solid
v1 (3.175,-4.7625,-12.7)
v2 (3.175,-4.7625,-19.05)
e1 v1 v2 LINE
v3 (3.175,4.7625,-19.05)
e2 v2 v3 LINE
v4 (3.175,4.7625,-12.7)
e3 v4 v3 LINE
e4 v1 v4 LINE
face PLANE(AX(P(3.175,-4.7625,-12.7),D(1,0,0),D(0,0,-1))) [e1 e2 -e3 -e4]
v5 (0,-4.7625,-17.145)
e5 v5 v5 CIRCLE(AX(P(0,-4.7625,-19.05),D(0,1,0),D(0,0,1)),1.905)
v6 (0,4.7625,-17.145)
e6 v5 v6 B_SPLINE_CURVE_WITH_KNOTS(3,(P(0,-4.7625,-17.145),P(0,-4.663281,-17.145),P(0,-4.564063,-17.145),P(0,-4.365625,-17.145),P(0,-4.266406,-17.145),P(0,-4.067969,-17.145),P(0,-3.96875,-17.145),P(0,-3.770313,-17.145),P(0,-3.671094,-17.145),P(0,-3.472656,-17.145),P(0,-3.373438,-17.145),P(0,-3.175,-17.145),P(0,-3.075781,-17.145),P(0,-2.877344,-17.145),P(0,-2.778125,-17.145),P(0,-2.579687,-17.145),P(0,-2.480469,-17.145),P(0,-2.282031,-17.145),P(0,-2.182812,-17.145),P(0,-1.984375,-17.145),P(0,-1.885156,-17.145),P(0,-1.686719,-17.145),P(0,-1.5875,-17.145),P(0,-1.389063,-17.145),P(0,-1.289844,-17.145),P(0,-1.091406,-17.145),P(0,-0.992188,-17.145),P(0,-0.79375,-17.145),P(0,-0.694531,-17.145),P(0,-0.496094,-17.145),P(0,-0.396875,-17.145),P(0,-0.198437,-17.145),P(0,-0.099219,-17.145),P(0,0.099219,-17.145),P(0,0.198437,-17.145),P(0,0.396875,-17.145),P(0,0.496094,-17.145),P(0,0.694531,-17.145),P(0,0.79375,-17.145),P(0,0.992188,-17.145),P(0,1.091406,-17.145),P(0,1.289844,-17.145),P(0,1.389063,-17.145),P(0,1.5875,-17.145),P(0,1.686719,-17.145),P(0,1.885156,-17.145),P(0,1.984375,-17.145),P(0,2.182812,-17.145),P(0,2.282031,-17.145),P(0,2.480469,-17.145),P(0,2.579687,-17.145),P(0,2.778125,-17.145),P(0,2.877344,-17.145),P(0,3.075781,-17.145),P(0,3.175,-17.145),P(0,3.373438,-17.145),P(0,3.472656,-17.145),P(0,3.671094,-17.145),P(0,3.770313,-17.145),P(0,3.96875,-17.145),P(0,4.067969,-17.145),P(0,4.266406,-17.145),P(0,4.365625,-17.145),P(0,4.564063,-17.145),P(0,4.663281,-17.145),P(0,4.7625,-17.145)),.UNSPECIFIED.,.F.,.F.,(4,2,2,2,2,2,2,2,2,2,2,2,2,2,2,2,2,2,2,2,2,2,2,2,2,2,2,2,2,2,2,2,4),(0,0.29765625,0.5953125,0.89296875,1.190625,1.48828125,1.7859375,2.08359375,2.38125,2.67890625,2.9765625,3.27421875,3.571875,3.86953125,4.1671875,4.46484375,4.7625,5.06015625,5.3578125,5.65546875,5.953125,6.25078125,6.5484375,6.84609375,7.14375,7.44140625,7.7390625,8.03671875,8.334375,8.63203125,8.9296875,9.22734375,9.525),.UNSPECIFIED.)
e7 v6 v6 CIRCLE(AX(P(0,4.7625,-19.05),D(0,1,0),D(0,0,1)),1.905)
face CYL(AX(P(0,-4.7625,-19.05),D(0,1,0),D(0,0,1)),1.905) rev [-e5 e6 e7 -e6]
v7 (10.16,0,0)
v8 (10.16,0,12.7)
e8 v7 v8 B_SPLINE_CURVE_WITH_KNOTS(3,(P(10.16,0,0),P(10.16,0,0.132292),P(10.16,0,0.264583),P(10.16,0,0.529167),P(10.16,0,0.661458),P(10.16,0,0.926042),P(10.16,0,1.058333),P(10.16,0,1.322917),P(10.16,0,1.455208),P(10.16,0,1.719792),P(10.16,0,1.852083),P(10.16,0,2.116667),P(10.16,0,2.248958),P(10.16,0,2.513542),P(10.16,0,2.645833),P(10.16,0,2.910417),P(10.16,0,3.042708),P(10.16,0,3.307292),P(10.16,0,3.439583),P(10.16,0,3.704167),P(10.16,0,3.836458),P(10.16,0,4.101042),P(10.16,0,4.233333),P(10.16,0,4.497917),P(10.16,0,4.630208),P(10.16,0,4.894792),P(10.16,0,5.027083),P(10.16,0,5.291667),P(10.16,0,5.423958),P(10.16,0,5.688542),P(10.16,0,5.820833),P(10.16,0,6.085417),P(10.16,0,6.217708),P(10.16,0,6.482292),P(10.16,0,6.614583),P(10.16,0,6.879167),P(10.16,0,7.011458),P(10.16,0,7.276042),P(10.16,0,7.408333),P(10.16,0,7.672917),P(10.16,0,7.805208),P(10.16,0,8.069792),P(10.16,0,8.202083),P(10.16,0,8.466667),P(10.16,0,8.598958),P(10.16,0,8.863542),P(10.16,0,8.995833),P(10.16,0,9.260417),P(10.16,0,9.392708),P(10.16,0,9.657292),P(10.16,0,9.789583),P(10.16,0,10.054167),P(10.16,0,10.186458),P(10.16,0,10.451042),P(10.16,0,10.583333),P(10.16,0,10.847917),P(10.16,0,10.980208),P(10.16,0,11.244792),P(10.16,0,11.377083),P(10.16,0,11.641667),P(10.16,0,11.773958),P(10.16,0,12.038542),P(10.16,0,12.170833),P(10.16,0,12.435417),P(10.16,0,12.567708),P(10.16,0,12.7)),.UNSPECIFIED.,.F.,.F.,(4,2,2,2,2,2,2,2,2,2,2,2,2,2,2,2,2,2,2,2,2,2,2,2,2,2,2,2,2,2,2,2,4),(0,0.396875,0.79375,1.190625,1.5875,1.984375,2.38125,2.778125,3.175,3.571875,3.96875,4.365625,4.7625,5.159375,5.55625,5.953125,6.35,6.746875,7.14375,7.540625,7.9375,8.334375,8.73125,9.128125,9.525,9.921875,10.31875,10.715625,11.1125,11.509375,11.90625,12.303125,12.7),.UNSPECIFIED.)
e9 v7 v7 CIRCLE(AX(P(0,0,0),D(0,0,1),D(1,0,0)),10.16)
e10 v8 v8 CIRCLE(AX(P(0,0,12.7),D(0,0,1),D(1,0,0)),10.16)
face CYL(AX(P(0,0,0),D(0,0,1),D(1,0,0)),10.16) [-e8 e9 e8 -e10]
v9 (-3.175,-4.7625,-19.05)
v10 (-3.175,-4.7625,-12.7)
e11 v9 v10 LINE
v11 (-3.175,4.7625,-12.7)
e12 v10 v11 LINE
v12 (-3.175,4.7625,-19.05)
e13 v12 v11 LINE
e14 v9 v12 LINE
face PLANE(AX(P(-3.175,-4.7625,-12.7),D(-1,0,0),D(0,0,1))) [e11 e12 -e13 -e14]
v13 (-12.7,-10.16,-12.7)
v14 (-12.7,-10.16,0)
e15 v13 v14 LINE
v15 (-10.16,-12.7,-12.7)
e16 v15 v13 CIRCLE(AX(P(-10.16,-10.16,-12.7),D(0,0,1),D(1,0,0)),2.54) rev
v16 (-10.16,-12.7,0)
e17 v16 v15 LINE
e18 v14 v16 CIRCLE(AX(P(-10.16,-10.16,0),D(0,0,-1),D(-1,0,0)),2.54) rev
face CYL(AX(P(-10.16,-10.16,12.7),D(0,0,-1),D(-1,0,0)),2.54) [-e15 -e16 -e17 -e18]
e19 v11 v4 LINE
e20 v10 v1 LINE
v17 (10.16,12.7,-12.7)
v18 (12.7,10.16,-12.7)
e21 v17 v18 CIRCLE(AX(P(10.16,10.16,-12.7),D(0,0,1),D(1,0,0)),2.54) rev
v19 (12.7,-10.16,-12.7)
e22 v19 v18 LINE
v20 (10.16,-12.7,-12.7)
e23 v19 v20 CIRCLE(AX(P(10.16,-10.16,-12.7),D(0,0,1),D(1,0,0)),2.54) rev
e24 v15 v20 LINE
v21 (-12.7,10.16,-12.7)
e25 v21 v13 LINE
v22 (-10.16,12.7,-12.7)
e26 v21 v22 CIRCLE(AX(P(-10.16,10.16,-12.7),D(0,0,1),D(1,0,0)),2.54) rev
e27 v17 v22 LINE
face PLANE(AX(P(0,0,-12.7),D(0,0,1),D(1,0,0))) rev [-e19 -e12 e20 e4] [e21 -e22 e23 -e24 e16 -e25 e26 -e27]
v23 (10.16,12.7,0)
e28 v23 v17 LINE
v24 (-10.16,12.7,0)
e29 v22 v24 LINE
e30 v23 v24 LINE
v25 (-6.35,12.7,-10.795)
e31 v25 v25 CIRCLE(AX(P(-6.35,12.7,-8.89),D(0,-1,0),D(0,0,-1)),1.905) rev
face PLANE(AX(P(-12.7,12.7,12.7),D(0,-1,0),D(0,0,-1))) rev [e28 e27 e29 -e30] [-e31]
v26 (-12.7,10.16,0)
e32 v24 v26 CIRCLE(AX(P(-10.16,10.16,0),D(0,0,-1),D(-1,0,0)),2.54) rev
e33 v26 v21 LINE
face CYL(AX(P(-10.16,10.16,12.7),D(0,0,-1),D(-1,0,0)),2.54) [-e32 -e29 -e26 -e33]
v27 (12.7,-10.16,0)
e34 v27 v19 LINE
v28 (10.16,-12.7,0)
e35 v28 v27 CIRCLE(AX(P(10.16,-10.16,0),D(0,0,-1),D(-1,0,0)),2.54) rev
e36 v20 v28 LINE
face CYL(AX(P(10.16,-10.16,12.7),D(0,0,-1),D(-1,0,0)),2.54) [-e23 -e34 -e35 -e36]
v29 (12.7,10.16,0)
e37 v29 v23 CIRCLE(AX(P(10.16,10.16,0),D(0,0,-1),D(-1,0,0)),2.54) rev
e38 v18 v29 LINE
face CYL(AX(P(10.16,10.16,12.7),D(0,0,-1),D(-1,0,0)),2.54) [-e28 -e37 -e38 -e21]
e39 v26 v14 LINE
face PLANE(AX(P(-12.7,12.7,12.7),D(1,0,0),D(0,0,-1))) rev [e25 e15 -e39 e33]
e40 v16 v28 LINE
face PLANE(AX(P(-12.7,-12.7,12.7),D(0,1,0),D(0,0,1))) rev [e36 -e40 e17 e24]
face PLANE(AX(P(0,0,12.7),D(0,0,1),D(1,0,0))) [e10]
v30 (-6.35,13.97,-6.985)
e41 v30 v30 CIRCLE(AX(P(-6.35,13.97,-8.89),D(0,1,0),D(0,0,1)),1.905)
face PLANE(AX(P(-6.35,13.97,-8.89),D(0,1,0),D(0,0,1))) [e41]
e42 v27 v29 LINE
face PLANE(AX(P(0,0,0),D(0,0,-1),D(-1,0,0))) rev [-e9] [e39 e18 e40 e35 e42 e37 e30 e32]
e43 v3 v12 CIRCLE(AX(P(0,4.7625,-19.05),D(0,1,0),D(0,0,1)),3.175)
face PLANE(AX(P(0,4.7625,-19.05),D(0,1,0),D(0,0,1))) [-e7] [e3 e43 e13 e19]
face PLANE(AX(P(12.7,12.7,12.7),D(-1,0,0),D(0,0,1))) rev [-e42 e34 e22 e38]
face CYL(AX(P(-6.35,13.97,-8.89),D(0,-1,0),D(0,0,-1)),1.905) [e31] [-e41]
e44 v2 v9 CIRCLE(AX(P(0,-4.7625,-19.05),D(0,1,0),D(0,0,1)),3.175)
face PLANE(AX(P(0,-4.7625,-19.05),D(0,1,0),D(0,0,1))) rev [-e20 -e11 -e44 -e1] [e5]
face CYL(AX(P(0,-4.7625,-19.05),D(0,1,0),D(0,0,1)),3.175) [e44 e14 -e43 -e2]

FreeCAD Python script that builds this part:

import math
import FreeCAD as App
import Part
import Sketcher
Q = App.Units.Quantity


def edges_at(feature, points):
    """Names of the edges that pass closest to the given points."""
    edges = feature.Shape.Edges
    near = lambda p: min(range(len(edges)), key=lambda i: edges[i].distToShape(Part.Vertex(*p))[0])
    return sorted({f"Edge{near(p) + 1}" for p in points})


def add_polygon(sketch, points):
    """Adds a closed chain of lines whose ends are joined by coincident constraints."""
    first, n = sketch.GeometryCount, len(points)
    for a, b in zip(points, points[1:] + points[:1]):
        sketch.addGeometry(Part.LineSegment(App.Vector(*a, 0), App.Vector(*b, 0)), False)
    for i in range(n):
        sketch.addConstraint(Sketcher.Constraint("Coincident", first + i, 2, first + (i + 1) % n, 1))

doc = App.newDocument("Part")
body = doc.addObject("PartDesign::Body", "Body")

# Sketch on XY plane
sketch1 = body.newObject("Sketcher::SketchObject", "Sketch")
sketch1.AttachmentSupport = (doc.getObject("XY_Plane"), [""])
sketch1.MapMode = "FlatFace"
add_polygon(sketch1, [(-13, 13), (-13, -13), (13, -13), (13, 13)])  # lines 0-3
sketch1.addConstraint(Sketcher.Constraint("Vertical", 0))
sketch1.addConstraint(Sketcher.Constraint("Horizontal", 1))
sketch1.addConstraint(Sketcher.Constraint("Vertical", 2))
sketch1.addConstraint(Sketcher.Constraint("Horizontal", 3))
sketch1.addConstraint(Sketcher.Constraint("Symmetric", 0, 2, 2, 2, -1, 1))
sketch1.addConstraint(Sketcher.Constraint("Equal", 3, 0))
sketch1.addConstraint(Sketcher.Constraint("DistanceX", 1, 1, 1, 2, Q("1 in")))
pad1 = body.newObject("PartDesign::Pad", "Pad")
pad1.Profile = sketch1
pad1.Length = Q("1 in")
pad1.Midplane = True

# Sketch on XY plane
sketch2 = body.newObject("Sketcher::SketchObject", "Sketch001")
sketch2.AttachmentSupport = (doc.getObject("XY_Plane"), [""])
sketch2.MapMode = "FlatFace"
sketch2.AttachmentOffset = App.Placement(App.Vector(0, 0, 0.5 * 25.4), App.Rotation())
add_polygon(sketch2, [(-13, 13), (-13, -13), (13, -13), (13, 13)])  # lines 0-3
sketch2.addGeometry(Part.Circle(App.Vector(0, 0, 0), App.Vector(0, 0, 1), 10), False)  # 4
sketch2.addConstraint(Sketcher.Constraint("Vertical", 0))
sketch2.addConstraint(Sketcher.Constraint("Horizontal", 1))
sketch2.addConstraint(Sketcher.Constraint("Vertical", 2))
sketch2.addConstraint(Sketcher.Constraint("Horizontal", 3))
sketch2.addConstraint(Sketcher.Constraint("Coincident", 4, 3, -1, 1))
sketch2.addConstraint(Sketcher.Constraint("Symmetric", 0, 2, 2, 2, -1, 1))
sketch2.addConstraint(Sketcher.Constraint("Equal", 3, 0))
sketch2.addConstraint(Sketcher.Constraint("Diameter", 4, Q("0.8 in")))
sketch2.addConstraint(Sketcher.Constraint("DistanceX", 1, 1, 1, 2, Q("1 in")))
pocket1 = body.newObject("PartDesign::Pocket", "Pocket")
pocket1.Profile = sketch2
pocket1.Length = Q("0.5 in")
doc.recompute()

fillet = body.newObject("PartDesign::Fillet", "Fillet")
fillet.Base = (pocket1, edges_at(pocket1, [
    (12.7, -12.7, -6.35),
    (-12.7, -12.7, -6.35),
    (-12.7, 12.7, -6.35),
    (12.7, 12.7, -6.35),
]))
fillet.Radius = Q("0.1 in")

# Sketch on XZ plane
sketch3 = body.newObject("Sketcher::SketchObject", "Sketch002")
sketch3.AttachmentSupport = (doc.getObject("XZ_Plane"), [""])
sketch3.MapMode = "FlatFace"
sketch3.AttachmentOffset = App.Placement(App.Vector(0, 0, -0.5 * 25.4), App.Rotation())
sketch3.addGeometry(Part.Circle(App.Vector(-6.3, -8.9, 0), App.Vector(0, 0, 1), 1.9), False)
sketch3.addConstraint(Sketcher.Constraint("Diameter", 0, Q("0.15 in")))
sketch3.addConstraint(Sketcher.Constraint("DistanceX", 0, 3, -1, 1, Q("0.25 in")))
sketch3.addConstraint(Sketcher.Constraint("DistanceY", 0, 3, -1, 1, Q("0.35 in")))
pad2 = body.newObject("PartDesign::Pad", "Pad001")
pad2.Profile = sketch3
pad2.Length = Q("0.1 in")
pad2.Midplane = True

# Sketch on XZ plane
sketch4 = body.newObject("Sketcher::SketchObject", "Sketch003")
sketch4.AttachmentSupport = (doc.getObject("XZ_Plane"), [""])
sketch4.MapMode = "FlatFace"
sketch4.AttachmentOffset = App.Placement(App.Vector(0, 0, -0.1875 * 25.4), App.Rotation())
sketch4.addGeometry(Part.LineSegment(App.Vector(-3.2, -12.7, 0), App.Vector(3.2, -12.7, 0)), False)
sketch4.addGeometry(Part.LineSegment(App.Vector(3.2, -12.7, 0), App.Vector(3.2, -19.1, 0)), False)
sketch4.addGeometry(Part.ArcOfCircle(Part.Circle(App.Vector(0, -19.1, 0), App.Vector(0, 0, 1), 3.2), math.radians(180), math.radians(360)), False)
sketch4.addGeometry(Part.LineSegment(App.Vector(-3.2, -19.1, 0), App.Vector(-3.2, -12.7, 0)), False)
sketch4.addGeometry(Part.Circle(App.Vector(0, -19.1, 0), App.Vector(0, 0, 1), 1.9), False)
sketch4.addConstraint(Sketcher.Constraint("Coincident", 0, 2, 1, 1))
sketch4.addConstraint(Sketcher.Constraint("Tangent", 1, 2, 2, 2))
sketch4.addConstraint(Sketcher.Constraint("Tangent", 2, 1, 3, 1))
sketch4.addConstraint(Sketcher.Constraint("Coincident", 3, 2, 0, 1))
sketch4.addConstraint(Sketcher.Constraint("Horizontal", 0))
sketch4.addConstraint(Sketcher.Constraint("Vertical", 1))
sketch4.addConstraint(Sketcher.Constraint("Vertical", 3))
sketch4.addConstraint(Sketcher.Constraint("Coincident", 4, 3, 2, 3))
sketch4.addConstraint(Sketcher.Constraint("PointOnObject", 2, 3, -2))
sketch4.addConstraint(Sketcher.Constraint("Equal", 0, 1))
sketch4.addConstraint(Sketcher.Constraint("Diameter", 4, Q("0.15 in")))
sketch4.addConstraint(Sketcher.Constraint("Radius", 2, Q("0.125 in")))
sketch4.addConstraint(Sketcher.Constraint("DistanceY", 0, 2, -1, 1, Q("0.5 in")))
pad3 = body.newObject("PartDesign::Pad", "Pad002")
pad3.Profile = sketch4
pad3.Length = Q("0.375 in")

doc.recompute()
